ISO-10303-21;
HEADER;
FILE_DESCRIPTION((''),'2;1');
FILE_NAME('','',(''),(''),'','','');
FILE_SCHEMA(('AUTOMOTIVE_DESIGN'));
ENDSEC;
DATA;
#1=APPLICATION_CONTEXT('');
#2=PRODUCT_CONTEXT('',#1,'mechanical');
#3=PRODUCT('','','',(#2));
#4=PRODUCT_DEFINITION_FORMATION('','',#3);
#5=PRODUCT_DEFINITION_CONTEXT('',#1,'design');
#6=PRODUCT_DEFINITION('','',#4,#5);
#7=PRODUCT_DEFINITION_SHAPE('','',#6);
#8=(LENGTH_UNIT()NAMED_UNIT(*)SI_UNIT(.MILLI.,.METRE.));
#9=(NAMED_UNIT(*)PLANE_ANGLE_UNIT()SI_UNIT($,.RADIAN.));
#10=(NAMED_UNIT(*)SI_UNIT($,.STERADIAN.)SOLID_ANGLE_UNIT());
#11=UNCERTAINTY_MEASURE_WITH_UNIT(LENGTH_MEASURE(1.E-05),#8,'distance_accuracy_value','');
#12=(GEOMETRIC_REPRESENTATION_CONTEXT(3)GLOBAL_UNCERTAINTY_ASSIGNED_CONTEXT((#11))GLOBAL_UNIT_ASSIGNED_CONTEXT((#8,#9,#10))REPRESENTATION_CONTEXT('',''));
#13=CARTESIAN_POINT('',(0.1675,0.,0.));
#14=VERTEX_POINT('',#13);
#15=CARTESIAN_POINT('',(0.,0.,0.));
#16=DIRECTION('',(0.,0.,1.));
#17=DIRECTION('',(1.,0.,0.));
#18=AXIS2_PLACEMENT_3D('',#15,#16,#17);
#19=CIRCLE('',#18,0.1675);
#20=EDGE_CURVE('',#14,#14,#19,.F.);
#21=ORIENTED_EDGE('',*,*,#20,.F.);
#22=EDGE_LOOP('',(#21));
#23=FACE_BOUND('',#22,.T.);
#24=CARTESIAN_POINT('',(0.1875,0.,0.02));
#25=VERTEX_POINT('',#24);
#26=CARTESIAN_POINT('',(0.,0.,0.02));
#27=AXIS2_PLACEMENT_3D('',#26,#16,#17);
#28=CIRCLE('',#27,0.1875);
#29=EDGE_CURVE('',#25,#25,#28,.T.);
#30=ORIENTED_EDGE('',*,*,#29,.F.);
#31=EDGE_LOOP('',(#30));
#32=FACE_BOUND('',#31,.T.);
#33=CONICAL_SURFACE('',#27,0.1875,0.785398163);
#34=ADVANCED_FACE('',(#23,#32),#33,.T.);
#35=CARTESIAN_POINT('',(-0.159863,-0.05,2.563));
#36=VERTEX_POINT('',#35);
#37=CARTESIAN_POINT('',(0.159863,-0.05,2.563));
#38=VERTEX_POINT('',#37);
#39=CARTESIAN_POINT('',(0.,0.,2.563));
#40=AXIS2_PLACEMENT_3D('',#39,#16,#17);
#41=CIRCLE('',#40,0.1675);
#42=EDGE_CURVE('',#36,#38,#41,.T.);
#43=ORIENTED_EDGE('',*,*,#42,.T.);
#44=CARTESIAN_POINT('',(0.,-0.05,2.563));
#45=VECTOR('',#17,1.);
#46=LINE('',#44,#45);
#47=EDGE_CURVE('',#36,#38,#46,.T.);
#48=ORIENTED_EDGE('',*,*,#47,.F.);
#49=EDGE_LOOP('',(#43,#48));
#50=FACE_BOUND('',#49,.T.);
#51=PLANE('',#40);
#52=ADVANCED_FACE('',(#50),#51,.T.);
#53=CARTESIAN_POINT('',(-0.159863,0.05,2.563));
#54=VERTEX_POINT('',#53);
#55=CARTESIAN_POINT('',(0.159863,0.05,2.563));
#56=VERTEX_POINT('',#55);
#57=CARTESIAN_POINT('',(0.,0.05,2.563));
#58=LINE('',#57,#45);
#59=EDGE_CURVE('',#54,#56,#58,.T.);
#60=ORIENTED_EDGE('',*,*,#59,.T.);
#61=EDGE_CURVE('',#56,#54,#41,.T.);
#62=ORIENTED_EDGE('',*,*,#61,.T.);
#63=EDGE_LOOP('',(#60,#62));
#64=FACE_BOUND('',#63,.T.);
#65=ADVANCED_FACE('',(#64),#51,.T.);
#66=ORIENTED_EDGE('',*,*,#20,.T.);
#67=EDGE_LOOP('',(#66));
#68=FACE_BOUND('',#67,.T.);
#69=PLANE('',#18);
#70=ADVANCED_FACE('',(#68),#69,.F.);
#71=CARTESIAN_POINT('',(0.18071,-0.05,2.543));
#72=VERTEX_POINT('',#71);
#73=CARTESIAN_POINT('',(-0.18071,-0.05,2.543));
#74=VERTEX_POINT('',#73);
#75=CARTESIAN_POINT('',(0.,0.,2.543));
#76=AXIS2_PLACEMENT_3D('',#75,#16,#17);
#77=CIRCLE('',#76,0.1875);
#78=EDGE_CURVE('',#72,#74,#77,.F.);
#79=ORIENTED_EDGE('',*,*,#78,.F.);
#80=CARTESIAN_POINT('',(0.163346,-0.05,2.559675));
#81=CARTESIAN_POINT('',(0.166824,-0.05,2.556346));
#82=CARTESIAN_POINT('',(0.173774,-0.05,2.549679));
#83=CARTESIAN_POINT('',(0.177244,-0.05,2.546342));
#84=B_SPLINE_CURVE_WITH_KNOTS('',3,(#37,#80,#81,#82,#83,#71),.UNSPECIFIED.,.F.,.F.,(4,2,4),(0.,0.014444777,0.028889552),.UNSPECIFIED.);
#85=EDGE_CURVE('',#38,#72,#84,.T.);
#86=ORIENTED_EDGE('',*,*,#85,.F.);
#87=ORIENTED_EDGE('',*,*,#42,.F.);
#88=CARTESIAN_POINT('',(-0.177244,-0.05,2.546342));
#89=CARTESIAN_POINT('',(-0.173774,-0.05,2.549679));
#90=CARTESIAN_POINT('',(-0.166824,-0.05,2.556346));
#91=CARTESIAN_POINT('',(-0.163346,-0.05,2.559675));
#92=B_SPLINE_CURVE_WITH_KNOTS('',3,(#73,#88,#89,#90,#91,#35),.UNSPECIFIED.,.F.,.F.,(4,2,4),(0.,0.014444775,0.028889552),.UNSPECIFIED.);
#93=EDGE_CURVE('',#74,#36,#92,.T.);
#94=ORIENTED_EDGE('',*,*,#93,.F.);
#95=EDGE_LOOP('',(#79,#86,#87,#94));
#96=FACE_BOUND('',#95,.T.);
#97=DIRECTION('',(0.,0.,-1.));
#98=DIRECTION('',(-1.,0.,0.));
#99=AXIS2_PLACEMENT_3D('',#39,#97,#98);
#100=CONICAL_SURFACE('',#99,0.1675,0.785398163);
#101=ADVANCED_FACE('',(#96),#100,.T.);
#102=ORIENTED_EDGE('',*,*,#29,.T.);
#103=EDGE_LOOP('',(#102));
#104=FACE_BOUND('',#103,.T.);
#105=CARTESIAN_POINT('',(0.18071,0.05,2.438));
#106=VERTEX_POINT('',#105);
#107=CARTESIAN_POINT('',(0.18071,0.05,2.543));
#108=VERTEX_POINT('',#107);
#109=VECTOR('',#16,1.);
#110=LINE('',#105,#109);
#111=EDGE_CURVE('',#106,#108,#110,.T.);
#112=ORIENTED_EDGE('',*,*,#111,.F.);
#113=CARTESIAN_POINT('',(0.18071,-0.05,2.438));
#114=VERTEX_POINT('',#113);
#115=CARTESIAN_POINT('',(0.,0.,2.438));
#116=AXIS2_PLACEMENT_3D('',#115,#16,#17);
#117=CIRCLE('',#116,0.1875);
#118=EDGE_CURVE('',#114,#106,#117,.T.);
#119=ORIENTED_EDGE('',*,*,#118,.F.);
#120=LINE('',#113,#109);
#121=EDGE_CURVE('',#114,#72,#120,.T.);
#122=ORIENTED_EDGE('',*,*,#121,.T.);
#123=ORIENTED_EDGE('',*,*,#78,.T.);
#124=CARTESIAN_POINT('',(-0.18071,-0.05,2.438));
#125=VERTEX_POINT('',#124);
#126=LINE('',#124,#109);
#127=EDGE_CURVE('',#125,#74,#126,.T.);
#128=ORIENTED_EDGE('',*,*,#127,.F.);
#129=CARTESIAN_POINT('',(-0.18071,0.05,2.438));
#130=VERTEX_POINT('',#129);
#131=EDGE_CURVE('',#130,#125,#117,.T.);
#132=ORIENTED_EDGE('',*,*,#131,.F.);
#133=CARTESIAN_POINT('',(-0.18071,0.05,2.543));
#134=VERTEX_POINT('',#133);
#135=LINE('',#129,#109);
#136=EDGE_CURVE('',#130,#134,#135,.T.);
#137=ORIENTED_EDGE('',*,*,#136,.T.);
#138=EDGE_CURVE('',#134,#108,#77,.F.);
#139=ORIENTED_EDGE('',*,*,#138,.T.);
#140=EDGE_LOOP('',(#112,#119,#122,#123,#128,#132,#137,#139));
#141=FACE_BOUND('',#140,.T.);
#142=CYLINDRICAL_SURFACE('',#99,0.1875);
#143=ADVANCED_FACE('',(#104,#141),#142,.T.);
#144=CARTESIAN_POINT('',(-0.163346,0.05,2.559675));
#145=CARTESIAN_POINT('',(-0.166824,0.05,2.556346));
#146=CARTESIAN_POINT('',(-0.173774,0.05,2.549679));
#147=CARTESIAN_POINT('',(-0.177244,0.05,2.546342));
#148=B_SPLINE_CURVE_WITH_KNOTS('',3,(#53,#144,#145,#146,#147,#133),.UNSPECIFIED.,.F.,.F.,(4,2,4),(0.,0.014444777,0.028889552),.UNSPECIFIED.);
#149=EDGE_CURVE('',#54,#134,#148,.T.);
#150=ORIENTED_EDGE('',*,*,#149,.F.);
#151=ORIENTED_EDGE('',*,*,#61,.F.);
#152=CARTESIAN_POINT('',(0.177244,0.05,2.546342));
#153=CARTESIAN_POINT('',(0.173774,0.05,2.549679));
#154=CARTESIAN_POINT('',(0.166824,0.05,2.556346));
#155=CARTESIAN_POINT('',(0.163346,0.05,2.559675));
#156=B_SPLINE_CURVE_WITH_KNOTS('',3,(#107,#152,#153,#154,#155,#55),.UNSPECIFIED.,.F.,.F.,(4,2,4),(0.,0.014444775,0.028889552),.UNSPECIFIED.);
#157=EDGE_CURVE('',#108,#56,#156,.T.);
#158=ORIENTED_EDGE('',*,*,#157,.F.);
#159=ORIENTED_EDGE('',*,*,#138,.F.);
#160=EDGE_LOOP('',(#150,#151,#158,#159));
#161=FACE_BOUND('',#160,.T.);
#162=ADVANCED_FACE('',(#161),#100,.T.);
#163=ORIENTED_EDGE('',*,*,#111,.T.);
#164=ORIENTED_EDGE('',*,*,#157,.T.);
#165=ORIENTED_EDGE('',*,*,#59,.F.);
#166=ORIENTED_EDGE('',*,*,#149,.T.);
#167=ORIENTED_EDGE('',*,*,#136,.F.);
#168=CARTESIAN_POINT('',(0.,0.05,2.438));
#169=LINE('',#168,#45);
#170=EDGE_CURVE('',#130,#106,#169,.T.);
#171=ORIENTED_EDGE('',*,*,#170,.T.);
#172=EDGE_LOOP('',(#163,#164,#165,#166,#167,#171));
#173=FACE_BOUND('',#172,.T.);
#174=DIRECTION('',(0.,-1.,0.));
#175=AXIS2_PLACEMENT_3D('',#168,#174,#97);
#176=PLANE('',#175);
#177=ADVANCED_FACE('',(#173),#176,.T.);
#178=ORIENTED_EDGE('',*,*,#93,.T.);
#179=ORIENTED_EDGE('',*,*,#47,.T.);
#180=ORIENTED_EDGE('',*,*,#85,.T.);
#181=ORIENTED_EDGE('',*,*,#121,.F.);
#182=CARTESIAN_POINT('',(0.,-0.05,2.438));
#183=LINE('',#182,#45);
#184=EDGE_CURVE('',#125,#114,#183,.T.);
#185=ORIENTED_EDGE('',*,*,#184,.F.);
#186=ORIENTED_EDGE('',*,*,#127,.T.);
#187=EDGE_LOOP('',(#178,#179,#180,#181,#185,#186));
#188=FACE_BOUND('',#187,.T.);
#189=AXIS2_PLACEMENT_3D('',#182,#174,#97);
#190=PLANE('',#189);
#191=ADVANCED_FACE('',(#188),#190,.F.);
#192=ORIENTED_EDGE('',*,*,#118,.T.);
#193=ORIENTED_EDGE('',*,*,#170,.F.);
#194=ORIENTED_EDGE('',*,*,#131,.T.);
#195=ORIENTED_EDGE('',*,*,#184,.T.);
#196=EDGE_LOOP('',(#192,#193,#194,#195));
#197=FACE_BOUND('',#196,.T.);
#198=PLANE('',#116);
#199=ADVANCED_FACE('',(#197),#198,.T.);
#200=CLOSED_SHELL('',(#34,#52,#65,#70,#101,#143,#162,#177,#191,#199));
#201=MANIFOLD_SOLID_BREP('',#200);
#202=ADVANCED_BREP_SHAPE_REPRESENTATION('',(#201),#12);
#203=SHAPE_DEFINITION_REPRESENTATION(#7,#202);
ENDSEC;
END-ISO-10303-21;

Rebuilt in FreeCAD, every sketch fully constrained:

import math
import FreeCAD as App
import Part
import Sketcher

V = App.Vector


def edges_at(feature, points):
    """Names of the edges that pass closest to the given points."""
    edges = feature.Shape.Edges
    near = lambda p: min(range(len(edges)), key=lambda i: edges[i].distToShape(Part.Vertex(*p))[0])
    return sorted({f"Edge{near(p) + 1}" for p in points})

doc = App.newDocument("Part")
body = doc.addObject("PartDesign::Body", "Body")

# Sketch on XY plane
sketch1 = body.newObject("Sketcher::SketchObject", "Sketch")
sketch1.AttachmentSupport = (doc.getObject("XY_Plane"), [""])
sketch1.MapMode = "FlatFace"
sketch1.addGeometry(Part.Circle(V(0, 0, 0), V(0, 0, 1), 0.1875), False)
sketch1.addConstraint(Sketcher.Constraint("Coincident", 0, 3, -1, 1))
sketch1.addConstraint(Sketcher.Constraint("Diameter", 0, 0.375))
pad1 = body.newObject("PartDesign::Pad", "Pad")
pad1.Profile = sketch1
pad1.Length = 2.563

# Sketch on XY plane
sketch2 = body.newObject("Sketcher::SketchObject", "Sketch001")
sketch2.AttachmentSupport = (doc.getObject("XY_Plane"), [""])
sketch2.MapMode = "FlatFace"
sketch2.AttachmentOffset = App.Placement(V(0, 0, 2.438), App.Rotation())
sketch2.addGeometry(Part.LineSegment(V(0.18071, 0.05, 0), V(-0.18071, 0.05, 0)), False)
sketch2.addGeometry(Part.ArcOfCircle(Part.Circle(V(0, 0, 0), V(0, 0, 1), 0.1875), math.radians(164.533991), math.radians(195.466009)), False)
sketch2.addGeometry(Part.LineSegment(V(-0.18071, -0.05, 0), V(0.18071, -0.05, 0)), False)
sketch2.addGeometry(Part.ArcOfCircle(Part.Circle(V(0, 0, 0), V(0, 0, 1), 0.1875), math.radians(-15.466006), math.radians(-0.000002)), False)
sketch2.addGeometry(Part.ArcOfCircle(Part.Circle(V(0, 0, 0), V(0, 0, 1), 0.1875), math.radians(0.000002), math.radians(15.466006)), False)
sketch2.addConstraint(Sketcher.Constraint("Coincident", 0, 2, 1, 1))
sketch2.addConstraint(Sketcher.Constraint("Coincident", 1, 2, 2, 1))
sketch2.addConstraint(Sketcher.Constraint("Coincident", 2, 2, 3, 1))
sketch2.addConstraint(Sketcher.Constraint("Tangent", 3, 2, 4, 1))
sketch2.addConstraint(Sketcher.Constraint("Coincident", 4, 2, 0, 1))
sketch2.addConstraint(Sketcher.Constraint("Horizontal", 0))
sketch2.addConstraint(Sketcher.Constraint("Horizontal", 2))
sketch2.addConstraint(Sketcher.Constraint("Coincident", 1, 3, -1, 1))
sketch2.addConstraint(Sketcher.Constraint("Coincident", 3, 3, -1, 1))
sketch2.addConstraint(Sketcher.Constraint("Equal", 1, 3))
sketch2.addConstraint(Sketcher.Constraint("Equal", 3, 4))
sketch2.addConstraint(Sketcher.Constraint("PointOnObject", 3, 2, -1))
sketch2.addConstraint(Sketcher.Constraint("Vertical", 0, 2, 1, 2))
sketch2.addConstraint(Sketcher.Constraint("Radius", 1, 0.1875))
sketch2.addConstraint(Sketcher.Constraint("DistanceY", 1, 2, 0, 2, 0.1))
pocket1 = body.newObject("PartDesign::Pocket", "Pocket")
pocket1.Profile = sketch2
pocket1.Length = 0.125
pocket1.Reversed = True
doc.recompute()

chamfer = body.newObject("PartDesign::Chamfer", "Chamfer")
chamfer.Base = (pocket1, edges_at(pocket1, [(0, 0.188, 2.563)]))
chamfer.Size = 0.02
doc.recompute()

chamfer2 = body.newObject("PartDesign::Chamfer", "Chamfer001")
chamfer2.Base = (chamfer, edges_at(chamfer, [(0, -0.188, 2.563)]))
chamfer2.Size = 0.02
doc.recompute()

chamfer3 = body.newObject("PartDesign::Chamfer", "Chamfer002")
chamfer3.Base = (chamfer2, edges_at(chamfer2, [(-0.188, 0, 0)]))
chamfer3.Size = 0.02

doc.recompute()
